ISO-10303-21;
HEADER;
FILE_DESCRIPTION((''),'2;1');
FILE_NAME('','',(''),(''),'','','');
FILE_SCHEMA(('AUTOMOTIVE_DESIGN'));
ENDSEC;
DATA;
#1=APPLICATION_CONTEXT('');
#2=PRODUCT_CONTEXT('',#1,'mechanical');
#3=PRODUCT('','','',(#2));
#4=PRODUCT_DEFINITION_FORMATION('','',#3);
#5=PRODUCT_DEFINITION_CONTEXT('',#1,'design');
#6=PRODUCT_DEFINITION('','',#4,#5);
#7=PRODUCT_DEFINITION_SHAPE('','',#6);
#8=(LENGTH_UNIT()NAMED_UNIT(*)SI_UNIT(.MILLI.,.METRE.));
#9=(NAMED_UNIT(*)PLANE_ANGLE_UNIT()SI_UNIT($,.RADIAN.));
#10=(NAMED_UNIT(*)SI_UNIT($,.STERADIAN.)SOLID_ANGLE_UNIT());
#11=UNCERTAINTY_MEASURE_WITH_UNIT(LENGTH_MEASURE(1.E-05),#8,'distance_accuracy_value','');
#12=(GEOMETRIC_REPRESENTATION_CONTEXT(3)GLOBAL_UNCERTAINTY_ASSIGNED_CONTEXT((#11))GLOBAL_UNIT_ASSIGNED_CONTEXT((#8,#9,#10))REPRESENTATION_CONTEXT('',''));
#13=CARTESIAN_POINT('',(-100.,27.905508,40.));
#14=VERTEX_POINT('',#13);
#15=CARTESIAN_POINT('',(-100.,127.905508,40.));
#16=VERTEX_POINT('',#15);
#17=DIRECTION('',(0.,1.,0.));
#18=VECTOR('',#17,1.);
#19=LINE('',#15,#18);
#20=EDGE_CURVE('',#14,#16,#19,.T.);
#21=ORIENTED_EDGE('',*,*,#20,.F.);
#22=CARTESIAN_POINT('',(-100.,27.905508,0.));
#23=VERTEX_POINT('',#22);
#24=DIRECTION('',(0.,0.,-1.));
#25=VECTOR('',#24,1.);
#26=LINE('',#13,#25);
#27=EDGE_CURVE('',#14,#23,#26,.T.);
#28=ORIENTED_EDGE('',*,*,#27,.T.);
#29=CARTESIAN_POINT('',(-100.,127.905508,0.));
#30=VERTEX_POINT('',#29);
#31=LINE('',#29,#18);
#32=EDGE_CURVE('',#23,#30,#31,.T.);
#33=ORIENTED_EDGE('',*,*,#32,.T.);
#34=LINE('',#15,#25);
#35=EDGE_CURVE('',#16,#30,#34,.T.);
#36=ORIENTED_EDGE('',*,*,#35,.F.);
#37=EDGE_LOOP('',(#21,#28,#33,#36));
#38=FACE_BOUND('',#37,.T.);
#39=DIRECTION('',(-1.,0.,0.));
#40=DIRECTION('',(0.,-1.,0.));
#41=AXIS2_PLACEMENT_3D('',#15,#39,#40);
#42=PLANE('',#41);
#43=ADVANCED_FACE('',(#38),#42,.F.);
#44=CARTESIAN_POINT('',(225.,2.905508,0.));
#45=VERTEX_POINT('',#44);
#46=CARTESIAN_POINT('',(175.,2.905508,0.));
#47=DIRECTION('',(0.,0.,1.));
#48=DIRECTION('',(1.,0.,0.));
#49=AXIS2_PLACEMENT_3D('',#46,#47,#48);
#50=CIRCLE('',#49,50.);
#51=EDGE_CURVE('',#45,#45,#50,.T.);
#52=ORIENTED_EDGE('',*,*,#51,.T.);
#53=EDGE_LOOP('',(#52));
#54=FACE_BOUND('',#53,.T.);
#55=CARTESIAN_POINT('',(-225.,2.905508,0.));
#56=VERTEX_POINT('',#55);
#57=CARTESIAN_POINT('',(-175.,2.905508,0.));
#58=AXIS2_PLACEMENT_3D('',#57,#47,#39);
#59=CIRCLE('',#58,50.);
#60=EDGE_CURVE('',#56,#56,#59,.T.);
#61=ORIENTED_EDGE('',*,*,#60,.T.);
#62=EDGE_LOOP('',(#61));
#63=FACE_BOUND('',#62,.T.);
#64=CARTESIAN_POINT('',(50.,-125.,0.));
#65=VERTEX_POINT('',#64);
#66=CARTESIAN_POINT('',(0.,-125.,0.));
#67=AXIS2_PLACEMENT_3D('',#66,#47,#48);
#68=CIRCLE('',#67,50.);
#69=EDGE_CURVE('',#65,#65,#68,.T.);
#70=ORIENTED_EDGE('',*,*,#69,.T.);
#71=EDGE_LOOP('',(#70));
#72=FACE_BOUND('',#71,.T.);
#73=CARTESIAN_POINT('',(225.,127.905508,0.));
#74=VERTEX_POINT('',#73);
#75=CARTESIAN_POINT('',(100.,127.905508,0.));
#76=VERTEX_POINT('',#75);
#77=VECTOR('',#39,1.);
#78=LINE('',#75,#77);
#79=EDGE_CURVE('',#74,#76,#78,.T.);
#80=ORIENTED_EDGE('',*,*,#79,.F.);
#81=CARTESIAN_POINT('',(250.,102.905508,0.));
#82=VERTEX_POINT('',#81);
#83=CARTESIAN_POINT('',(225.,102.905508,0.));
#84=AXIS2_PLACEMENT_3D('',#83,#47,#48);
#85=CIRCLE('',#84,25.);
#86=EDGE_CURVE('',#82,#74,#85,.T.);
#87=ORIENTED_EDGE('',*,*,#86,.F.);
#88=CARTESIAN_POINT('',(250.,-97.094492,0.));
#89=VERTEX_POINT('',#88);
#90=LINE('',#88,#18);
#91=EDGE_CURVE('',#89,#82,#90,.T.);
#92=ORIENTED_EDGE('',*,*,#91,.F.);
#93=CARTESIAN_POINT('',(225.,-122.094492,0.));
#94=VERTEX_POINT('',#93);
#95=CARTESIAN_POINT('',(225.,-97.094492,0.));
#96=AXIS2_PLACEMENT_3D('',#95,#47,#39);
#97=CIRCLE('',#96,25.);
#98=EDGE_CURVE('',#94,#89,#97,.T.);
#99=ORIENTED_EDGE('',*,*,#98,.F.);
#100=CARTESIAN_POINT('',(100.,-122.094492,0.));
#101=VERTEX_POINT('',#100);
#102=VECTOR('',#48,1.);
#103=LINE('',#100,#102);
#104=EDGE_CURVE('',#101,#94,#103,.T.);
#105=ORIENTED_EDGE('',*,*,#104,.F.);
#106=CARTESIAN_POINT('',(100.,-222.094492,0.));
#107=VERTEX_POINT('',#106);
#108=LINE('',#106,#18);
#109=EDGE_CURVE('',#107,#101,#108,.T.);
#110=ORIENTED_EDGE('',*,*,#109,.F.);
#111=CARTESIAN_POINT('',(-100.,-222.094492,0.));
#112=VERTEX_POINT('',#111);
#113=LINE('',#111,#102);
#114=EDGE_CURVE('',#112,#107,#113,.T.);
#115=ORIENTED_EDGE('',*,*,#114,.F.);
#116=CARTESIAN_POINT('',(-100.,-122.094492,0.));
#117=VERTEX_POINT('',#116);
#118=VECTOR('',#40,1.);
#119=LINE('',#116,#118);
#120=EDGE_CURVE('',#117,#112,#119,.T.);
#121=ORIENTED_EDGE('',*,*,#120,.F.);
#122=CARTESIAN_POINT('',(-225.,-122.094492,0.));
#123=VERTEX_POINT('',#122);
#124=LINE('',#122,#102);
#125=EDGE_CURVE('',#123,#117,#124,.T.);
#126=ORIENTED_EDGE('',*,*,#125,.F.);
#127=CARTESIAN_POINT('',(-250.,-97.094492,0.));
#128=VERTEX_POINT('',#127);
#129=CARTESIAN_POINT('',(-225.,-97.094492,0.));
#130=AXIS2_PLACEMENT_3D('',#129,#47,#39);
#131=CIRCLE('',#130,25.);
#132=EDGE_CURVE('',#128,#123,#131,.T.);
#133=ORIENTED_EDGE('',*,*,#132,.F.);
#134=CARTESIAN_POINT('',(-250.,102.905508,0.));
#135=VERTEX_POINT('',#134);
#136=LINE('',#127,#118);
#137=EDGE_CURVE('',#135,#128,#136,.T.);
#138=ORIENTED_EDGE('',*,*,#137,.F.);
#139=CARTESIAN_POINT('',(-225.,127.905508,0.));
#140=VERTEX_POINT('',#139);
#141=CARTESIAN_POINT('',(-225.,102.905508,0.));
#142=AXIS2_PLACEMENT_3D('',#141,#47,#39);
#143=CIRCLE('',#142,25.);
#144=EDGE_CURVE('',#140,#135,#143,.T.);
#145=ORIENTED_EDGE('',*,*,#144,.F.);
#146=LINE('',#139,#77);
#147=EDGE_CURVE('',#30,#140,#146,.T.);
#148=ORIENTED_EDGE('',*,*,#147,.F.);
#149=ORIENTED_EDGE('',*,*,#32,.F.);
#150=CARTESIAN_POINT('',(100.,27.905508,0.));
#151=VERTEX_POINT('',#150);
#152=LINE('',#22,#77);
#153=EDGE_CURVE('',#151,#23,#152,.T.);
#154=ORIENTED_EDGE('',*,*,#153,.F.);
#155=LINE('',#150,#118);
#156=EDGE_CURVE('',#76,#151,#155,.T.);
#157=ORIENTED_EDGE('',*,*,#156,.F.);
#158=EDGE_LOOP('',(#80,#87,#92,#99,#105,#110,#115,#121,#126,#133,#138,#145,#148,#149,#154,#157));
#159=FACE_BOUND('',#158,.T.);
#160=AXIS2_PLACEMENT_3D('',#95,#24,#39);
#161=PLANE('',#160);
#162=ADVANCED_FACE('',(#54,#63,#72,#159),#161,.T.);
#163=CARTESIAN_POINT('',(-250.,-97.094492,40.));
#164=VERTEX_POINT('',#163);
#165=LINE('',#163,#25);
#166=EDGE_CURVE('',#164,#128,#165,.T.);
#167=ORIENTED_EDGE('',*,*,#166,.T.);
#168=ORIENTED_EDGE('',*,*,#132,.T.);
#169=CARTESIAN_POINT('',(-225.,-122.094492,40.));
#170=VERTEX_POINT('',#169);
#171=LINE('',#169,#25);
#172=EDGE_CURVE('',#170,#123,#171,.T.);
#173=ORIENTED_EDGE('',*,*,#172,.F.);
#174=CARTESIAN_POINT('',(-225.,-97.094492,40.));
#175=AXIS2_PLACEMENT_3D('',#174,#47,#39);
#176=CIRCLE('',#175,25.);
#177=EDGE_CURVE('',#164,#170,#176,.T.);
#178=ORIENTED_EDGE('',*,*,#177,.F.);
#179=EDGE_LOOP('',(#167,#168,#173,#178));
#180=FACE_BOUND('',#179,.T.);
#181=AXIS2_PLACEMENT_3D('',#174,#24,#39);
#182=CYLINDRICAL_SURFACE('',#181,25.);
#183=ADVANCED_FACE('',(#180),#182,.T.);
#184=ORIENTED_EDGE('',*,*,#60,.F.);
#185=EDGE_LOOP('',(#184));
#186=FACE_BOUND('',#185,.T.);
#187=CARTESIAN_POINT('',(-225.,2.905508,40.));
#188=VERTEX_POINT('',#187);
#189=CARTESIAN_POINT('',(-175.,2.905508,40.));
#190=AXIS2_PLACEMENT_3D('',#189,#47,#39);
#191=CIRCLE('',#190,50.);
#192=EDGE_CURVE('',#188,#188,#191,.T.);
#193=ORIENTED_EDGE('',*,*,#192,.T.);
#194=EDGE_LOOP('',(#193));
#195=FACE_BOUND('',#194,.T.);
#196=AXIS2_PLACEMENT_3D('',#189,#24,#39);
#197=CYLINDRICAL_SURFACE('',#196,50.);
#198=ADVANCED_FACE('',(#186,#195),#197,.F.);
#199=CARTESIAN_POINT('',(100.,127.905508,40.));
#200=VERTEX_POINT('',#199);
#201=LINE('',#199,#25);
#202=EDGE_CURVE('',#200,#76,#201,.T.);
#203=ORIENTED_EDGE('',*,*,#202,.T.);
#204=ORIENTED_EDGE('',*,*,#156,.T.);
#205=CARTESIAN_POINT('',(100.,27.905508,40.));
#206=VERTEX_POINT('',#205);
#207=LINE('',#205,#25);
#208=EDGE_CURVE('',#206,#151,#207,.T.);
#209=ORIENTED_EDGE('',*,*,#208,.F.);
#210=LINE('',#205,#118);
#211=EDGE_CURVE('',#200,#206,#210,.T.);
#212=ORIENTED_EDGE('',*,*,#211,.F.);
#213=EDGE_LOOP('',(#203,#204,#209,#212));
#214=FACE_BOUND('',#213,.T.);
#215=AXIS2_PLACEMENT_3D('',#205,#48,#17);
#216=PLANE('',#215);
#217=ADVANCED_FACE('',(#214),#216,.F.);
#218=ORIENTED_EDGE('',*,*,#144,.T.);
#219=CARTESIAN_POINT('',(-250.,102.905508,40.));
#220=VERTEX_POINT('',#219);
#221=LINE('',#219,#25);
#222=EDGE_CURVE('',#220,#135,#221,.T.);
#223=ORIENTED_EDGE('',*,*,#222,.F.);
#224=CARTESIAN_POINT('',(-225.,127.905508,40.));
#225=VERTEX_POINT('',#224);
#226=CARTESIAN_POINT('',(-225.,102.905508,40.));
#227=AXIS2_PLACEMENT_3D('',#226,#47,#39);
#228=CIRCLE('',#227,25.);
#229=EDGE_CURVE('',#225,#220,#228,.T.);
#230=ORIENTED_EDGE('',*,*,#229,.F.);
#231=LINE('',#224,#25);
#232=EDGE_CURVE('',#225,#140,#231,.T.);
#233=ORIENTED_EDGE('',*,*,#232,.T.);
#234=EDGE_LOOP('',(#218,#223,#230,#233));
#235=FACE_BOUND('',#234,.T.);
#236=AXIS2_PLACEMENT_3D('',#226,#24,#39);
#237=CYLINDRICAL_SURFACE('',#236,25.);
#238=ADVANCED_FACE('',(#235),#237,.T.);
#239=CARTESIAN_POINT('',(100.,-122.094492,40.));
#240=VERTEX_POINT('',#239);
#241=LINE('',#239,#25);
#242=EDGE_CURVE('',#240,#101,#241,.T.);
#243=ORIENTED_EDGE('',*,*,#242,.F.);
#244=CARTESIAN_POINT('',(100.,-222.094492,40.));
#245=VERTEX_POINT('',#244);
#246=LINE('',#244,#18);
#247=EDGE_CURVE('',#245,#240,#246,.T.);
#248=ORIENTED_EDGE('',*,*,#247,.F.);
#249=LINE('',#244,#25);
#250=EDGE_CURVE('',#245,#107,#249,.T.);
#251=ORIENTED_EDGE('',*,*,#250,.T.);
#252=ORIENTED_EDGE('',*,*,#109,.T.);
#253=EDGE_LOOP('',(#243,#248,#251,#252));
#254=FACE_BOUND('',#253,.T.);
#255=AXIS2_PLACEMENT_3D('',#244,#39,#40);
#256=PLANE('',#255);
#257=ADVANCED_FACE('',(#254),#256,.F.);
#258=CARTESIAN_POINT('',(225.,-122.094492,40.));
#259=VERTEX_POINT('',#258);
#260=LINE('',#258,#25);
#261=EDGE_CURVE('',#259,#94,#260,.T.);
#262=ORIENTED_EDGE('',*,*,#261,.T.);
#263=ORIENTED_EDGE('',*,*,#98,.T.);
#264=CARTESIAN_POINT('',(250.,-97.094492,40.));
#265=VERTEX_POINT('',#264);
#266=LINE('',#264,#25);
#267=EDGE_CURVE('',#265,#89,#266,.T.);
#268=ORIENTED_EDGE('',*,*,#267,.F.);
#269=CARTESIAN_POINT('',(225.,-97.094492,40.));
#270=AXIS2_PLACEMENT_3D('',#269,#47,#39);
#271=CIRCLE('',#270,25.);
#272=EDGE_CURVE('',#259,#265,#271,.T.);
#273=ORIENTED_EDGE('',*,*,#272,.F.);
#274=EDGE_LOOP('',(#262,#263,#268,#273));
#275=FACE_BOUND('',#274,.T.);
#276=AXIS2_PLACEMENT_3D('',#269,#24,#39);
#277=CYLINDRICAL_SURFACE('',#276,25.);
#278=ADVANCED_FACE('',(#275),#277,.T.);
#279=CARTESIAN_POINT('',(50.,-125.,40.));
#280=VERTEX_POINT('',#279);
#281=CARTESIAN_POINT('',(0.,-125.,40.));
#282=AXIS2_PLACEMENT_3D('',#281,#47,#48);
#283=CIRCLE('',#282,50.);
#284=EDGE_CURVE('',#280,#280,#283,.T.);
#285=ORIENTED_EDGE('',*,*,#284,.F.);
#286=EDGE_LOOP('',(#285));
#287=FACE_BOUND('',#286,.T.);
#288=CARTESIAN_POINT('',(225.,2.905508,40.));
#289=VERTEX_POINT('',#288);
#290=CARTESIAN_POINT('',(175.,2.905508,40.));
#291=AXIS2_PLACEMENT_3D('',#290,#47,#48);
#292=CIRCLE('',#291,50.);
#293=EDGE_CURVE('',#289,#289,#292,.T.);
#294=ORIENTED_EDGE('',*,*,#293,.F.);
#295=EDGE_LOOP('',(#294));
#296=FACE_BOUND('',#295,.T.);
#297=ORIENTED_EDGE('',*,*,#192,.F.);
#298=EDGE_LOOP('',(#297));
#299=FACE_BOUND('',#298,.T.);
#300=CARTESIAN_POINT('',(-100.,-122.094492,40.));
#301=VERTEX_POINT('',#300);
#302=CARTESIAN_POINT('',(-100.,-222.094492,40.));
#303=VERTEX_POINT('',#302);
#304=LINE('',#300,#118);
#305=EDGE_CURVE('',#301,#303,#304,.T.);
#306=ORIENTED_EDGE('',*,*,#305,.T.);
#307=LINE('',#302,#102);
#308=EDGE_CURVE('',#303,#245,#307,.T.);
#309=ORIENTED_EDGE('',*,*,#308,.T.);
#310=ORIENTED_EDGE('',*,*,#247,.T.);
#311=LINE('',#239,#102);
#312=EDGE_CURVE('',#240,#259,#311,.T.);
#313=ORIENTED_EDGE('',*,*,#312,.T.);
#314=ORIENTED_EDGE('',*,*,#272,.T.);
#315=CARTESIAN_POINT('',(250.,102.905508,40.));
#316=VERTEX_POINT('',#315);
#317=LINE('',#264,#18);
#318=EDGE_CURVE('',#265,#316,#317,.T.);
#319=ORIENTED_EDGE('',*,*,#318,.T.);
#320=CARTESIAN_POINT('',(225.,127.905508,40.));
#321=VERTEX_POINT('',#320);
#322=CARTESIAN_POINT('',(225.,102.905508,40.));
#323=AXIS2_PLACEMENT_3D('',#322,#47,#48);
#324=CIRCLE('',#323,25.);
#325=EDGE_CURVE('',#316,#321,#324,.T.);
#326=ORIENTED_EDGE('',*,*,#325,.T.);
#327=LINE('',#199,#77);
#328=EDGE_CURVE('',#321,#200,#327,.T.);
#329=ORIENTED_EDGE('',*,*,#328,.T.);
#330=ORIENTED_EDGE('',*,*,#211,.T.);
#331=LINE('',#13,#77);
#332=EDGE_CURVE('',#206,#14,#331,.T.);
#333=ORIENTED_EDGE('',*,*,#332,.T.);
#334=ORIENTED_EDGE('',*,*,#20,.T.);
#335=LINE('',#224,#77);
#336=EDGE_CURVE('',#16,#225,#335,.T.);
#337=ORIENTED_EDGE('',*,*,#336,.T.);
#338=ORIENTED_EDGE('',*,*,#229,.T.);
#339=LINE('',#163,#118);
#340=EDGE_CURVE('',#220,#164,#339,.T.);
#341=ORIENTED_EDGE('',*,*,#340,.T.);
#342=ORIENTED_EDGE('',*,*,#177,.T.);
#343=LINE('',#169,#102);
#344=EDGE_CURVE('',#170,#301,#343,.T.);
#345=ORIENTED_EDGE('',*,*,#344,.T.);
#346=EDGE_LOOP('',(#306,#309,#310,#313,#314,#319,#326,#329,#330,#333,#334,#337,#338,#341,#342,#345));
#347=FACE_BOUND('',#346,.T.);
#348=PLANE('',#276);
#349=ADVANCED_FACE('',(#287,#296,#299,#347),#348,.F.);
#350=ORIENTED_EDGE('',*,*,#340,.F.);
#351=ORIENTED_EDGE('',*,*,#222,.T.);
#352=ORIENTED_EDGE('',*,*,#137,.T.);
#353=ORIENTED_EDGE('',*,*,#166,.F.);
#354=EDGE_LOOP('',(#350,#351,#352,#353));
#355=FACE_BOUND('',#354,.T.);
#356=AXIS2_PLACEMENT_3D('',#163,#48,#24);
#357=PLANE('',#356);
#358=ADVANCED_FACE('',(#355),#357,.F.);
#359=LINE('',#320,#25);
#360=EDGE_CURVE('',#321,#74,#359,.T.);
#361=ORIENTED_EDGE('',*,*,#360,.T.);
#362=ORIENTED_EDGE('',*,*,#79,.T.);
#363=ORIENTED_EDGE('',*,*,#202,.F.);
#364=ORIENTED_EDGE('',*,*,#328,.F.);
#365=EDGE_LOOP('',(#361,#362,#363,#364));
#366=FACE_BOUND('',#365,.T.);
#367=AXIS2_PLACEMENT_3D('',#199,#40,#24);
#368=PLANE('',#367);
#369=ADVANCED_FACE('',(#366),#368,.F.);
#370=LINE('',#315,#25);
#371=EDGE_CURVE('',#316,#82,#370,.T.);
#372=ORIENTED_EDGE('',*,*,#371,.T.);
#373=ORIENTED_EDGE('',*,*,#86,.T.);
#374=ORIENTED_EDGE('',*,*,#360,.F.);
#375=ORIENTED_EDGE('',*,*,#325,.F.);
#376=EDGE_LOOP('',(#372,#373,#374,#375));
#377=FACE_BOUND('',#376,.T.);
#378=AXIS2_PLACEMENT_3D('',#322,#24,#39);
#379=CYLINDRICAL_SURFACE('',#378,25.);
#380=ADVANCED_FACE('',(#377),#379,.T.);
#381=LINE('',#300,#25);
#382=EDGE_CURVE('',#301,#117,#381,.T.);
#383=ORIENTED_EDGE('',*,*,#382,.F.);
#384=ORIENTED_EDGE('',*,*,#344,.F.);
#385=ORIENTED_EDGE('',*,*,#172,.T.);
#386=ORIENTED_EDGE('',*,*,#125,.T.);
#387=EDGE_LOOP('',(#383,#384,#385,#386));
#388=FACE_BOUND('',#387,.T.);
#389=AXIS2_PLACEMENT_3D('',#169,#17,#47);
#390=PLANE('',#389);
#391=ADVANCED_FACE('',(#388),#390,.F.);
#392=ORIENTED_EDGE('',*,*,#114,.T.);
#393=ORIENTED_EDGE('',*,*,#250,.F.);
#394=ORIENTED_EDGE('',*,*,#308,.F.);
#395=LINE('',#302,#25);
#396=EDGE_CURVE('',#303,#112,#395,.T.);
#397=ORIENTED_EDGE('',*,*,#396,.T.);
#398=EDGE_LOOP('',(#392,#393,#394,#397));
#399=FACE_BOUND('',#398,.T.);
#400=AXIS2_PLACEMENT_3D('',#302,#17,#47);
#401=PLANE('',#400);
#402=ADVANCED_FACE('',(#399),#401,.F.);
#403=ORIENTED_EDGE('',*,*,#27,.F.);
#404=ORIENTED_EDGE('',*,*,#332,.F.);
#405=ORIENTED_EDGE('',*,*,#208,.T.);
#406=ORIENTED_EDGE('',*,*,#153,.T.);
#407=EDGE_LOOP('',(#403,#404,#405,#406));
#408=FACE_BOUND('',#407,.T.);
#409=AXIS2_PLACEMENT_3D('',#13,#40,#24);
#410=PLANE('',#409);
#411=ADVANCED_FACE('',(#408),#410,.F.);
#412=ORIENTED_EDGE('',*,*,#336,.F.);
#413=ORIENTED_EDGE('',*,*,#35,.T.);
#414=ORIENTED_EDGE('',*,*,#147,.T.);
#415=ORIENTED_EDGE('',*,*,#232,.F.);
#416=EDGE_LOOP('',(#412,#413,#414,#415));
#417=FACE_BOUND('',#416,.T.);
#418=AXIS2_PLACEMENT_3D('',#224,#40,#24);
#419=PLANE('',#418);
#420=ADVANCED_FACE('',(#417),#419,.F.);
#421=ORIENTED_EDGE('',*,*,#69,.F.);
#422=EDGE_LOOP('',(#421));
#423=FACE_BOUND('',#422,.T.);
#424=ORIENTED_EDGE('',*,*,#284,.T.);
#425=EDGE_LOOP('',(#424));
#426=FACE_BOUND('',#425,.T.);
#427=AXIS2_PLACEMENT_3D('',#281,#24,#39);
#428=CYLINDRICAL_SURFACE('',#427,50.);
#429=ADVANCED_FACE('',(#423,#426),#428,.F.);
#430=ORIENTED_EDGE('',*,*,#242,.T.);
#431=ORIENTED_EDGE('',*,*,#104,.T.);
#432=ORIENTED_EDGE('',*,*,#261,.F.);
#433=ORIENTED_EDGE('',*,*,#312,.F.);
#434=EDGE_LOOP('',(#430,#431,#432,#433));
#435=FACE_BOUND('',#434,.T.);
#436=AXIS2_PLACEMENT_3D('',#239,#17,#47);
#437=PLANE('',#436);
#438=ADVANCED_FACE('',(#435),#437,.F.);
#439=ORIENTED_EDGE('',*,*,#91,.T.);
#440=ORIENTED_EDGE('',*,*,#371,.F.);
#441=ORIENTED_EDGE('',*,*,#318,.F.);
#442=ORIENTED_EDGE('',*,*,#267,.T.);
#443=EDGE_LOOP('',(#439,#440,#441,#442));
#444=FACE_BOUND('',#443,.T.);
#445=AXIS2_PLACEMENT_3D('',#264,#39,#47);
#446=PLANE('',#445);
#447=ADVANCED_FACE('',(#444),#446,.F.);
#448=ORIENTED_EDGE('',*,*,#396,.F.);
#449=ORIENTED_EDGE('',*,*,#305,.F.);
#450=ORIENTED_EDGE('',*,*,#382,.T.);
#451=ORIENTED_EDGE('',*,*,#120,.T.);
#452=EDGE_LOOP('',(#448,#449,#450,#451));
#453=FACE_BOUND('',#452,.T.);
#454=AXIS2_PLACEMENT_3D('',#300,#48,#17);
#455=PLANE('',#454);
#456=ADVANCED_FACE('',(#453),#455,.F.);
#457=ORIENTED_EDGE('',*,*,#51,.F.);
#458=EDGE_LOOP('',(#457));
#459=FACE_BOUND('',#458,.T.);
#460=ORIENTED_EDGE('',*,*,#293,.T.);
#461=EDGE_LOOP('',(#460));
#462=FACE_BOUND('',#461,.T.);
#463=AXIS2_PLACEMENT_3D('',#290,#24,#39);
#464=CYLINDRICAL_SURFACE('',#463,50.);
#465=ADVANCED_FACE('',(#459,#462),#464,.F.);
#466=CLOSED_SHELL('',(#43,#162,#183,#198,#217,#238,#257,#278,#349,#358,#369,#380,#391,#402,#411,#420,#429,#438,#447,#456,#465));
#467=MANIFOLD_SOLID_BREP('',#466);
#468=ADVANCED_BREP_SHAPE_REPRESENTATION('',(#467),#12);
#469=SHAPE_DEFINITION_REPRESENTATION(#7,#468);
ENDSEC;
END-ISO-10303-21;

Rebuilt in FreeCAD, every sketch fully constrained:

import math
import FreeCAD as App
import Part
import Sketcher

V = App.Vector
Q = App.Units.Quantity

doc = App.newDocument("Part")
params = doc.addObject("Spreadsheet::Sheet", "Params")
for row, (alias, value) in enumerate([
    ("sketch1_diameter", "100 mm"),
    ("sketch1_radius", "25 mm"),
    ("sketch1_width", "200 mm"),
    ("sketch1_width2", "125 mm"),
    ("sketch1_height", "100 mm"),
    ("pad1_length", "40 mm"),
], start=1):
    params.set(f"A{row}", alias)
    params.set(f"B{row}", "=" + value)
    params.setAlias(f"B{row}", alias)

body = doc.addObject("PartDesign::Body", "Body")

# Sketch on XY plane
sketch1 = body.newObject("Sketcher::SketchObject", "Sketch")
sketch1.AttachmentSupport = (doc.getObject("XY_Plane"), [""])
sketch1.MapMode = "FlatFace"
sketch1.addGeometry([
    Part.LineSegment(V(-100, -122, 0), V(-100, -222, 0)),  # 0
    Part.LineSegment(V(-100, -222, 0), V(100, -222, 0)),  # 1
    Part.LineSegment(V(100, -222, 0), V(100, -122, 0)),  # 2
    Part.LineSegment(V(100, -122, 0), V(225, -122, 0)),  # 3
    Part.ArcOfCircle(Part.Circle(V(225, -97, 0), V(0, 0, 1), 25), math.radians(-90), math.radians(0)),  # 4
    Part.LineSegment(V(250, -97, 0), V(250, 103, 0)),  # 5
    Part.ArcOfCircle(Part.Circle(V(225, 103, 0), V(0, 0, 1), 25), math.radians(0), math.radians(90)),  # 6
    Part.LineSegment(V(225, 128, 0), V(100, 128, 0)),  # 7
    Part.LineSegment(V(100, 128, 0), V(100, 28, 0)),  # 8
    Part.LineSegment(V(100, 28, 0), V(-100, 28, 0)),  # 9
    Part.LineSegment(V(-100, 28, 0), V(-100, 128, 0)),  # 10
    Part.LineSegment(V(-100, 128, 0), V(-225, 128, 0)),  # 11
    Part.ArcOfCircle(Part.Circle(V(-225, 103, 0), V(0, 0, 1), 25), math.radians(90), math.radians(180)),  # 12
    Part.LineSegment(V(-250, 103, 0), V(-250, -97, 0)),  # 13
    Part.ArcOfCircle(Part.Circle(V(-225, -97, 0), V(0, 0, 1), 25), math.radians(-180), math.radians(-90)),  # 14
    Part.LineSegment(V(-225, -122, 0), V(-100, -122, 0)),  # 15
    Part.Circle(V(0, -125, 0), V(0, 0, 1), 50),  # 16
    Part.Circle(V(-175, 3, 0), V(0, 0, 1), 50),  # 17
    Part.Circle(V(175, 3, 0), V(0, 0, 1), 50),  # 18
], False)
sketch1.addConstraint([
    Sketcher.Constraint("Coincident", 0, 2, 1, 1),
    Sketcher.Constraint("Coincident", 1, 2, 2, 1),
    Sketcher.Constraint("Coincident", 2, 2, 3, 1),
    Sketcher.Constraint("Tangent", 3, 2, 4, 1),
    Sketcher.Constraint("Tangent", 4, 2, 5, 1),
    Sketcher.Constraint("Tangent", 5, 2, 6, 1),
    Sketcher.Constraint("Tangent", 6, 2, 7, 1),
    Sketcher.Constraint("Coincident", 7, 2, 8, 1),
    Sketcher.Constraint("Coincident", 8, 2, 9, 1),
    Sketcher.Constraint("Coincident", 9, 2, 10, 1),
    Sketcher.Constraint("Coincident", 10, 2, 11, 1),
    Sketcher.Constraint("Tangent", 11, 2, 12, 1),
    Sketcher.Constraint("Tangent", 12, 2, 13, 1),
    Sketcher.Constraint("Tangent", 13, 2, 14, 1),
    Sketcher.Constraint("Tangent", 14, 2, 15, 1),
    Sketcher.Constraint("Coincident", 15, 2, 0, 1),
    Sketcher.Constraint("Vertical", 0),
    Sketcher.Constraint("Horizontal", 1),
    Sketcher.Constraint("Vertical", 2),
    Sketcher.Constraint("Horizontal", 3),
    Sketcher.Constraint("Vertical", 5),
    Sketcher.Constraint("Horizontal", 7),
    Sketcher.Constraint("Vertical", 8),
    Sketcher.Constraint("Horizontal", 9),
    Sketcher.Constraint("Vertical", 10),
    Sketcher.Constraint("Horizontal", 11),
    Sketcher.Constraint("Vertical", 13),
    Sketcher.Constraint("Horizontal", 15),
    Sketcher.Constraint("Equal", 4, 6),
    Sketcher.Constraint("Equal", 6, 12),
    Sketcher.Constraint("Equal", 12, 14),
    Sketcher.Constraint("Equal", 16, 17),
    Sketcher.Constraint("Equal", 17, 18),
    Sketcher.Constraint("Symmetric", 6, 3, 12, 3, -2),
    Sketcher.Constraint("Symmetric", 17, 3, 18, 3, -2),
    Sketcher.Constraint("Symmetric", 2, 2, 15, 2, -2),
    Sketcher.Constraint("PointOnObject", 16, 3, -2),
    Sketcher.Constraint("Vertical", 2, 2, 7, 2),
    Sketcher.Constraint("Vertical", 0, 2, 9, 2),
    Sketcher.Constraint("Equal", 9, 5),
    Sketcher.Constraint("Equal", 2, 8),
    Sketcher.Constraint("Diameter", 16, Q("100 mm")),
    Sketcher.Constraint("Radius", 4, Q("25 mm")),
    Sketcher.Constraint("DistanceX", 1, 1, 1, 2, Q("200 mm")),
    Sketcher.Constraint("DistanceX", 3, 1, 3, 2, Q("125 mm")),
    Sketcher.Constraint("DistanceY", 0, 2, 0, 1, Q("100 mm")),
    Sketcher.Constraint("DistanceY", 16, 3, -1, 1, Q("125 mm")),
    Sketcher.Constraint("DistanceX", 17, 3, -1, 1, Q("175 mm")),
    Sketcher.Constraint("DistanceY", 14, 3, 17, 3, Q("100 mm")),
    Sketcher.Constraint("DistanceY", 4, 3, -1, 1, Q("97.094492 mm")),
])
sketch1.setExpression("Constraints[41]", "Params.sketch1_diameter")
sketch1.setExpression("Constraints[42]", "Params.sketch1_radius")
sketch1.setExpression("Constraints[43]", "Params.sketch1_width")
sketch1.setExpression("Constraints[44]", "Params.sketch1_width2")
sketch1.setExpression("Constraints[45]", "Params.sketch1_height")
pad1 = body.newObject("PartDesign::Pad", "Pad")
pad1.Profile = sketch1
pad1.setExpression("Length", "Params.pad1_length")

doc.recompute()
